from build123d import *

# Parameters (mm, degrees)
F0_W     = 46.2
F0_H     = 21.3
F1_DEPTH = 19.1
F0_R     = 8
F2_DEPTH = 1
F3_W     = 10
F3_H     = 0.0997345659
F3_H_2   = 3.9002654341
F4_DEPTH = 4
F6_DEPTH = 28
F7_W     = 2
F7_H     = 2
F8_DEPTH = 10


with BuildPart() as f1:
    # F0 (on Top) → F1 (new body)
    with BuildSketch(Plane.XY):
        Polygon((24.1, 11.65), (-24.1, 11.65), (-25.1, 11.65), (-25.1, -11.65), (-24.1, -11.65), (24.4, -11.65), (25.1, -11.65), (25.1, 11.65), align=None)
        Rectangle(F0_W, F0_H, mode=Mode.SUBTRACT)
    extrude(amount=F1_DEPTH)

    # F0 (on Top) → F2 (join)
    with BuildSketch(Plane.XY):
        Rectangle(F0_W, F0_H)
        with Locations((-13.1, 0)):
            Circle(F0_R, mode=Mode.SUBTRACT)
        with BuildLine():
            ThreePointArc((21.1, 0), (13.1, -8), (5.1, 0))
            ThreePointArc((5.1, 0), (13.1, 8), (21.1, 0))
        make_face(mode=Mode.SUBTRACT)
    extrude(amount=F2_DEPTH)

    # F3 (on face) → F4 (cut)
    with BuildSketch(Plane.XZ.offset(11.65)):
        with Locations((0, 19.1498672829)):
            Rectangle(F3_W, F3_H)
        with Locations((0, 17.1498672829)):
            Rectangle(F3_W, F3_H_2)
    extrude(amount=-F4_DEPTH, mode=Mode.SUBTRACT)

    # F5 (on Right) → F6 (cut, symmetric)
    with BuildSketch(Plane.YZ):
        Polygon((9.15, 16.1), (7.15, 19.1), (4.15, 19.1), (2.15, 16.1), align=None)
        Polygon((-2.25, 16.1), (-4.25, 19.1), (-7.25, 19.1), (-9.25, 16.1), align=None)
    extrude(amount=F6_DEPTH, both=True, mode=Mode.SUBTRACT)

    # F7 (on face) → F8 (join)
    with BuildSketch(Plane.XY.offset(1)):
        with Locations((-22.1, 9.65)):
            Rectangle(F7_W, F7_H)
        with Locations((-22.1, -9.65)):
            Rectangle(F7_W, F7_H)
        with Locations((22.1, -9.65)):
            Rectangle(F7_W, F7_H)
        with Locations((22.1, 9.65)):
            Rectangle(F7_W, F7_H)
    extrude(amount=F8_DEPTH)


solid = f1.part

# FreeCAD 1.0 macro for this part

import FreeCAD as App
import Part
import Sketcher

V = App.Vector
Q = App.Units.Quantity

doc = App.newDocument("Part")
body = doc.addObject("PartDesign::Body", "Body")

# Sketch on XY plane
sketch1 = body.newObject("Sketcher::SketchObject", "Sketch")
sketch1.AttachmentSupport = (doc.getObject("XY_Plane"), [""])
sketch1.MapMode = "FlatFace"
sketch1.addGeometry(Part.LineSegment(V(-25, 12, 0), V(-25, -12, 0)), False)
sketch1.addGeometry(Part.LineSegment(V(-25, -12, 0), V(25, -12, 0)), False)
sketch1.addGeometry(Part.LineSegment(V(25, -12, 0), V(25, 12, 0)), False)
sketch1.addGeometry(Part.LineSegment(V(25, 12, 0), V(-25, 12, 0)), False)
sketch1.addGeometry(Part.LineSegment(V(23, -11, 0), V(-23, -11, 0)), False)
sketch1.addGeometry(Part.LineSegment(V(-23, -11, 0), V(-23, 11, 0)), False)
sketch1.addGeometry(Part.LineSegment(V(-23, 11, 0), V(23, 11, 0)), False)
sketch1.addGeometry(Part.LineSegment(V(23, 11, 0), V(23, -11, 0)), False)
sketch1.addConstraint(Sketcher.Constraint("Coincident", 0, 2, 1, 1))
sketch1.addConstraint(Sketcher.Constraint("Coincident", 1, 2, 2, 1))
sketch1.addConstraint(Sketcher.Constraint("Coincident", 2, 2, 3, 1))
sketch1.addConstraint(Sketcher.Constraint("Coincident", 3, 2, 0, 1))
sketch1.addConstraint(Sketcher.Constraint("Coincident", 4, 2, 5, 1))
sketch1.addConstraint(Sketcher.Constraint("Coincident", 5, 2, 6, 1))
sketch1.addConstraint(Sketcher.Constraint("Coincident", 6, 2, 7, 1))
sketch1.addConstraint(Sketcher.Constraint("Coincident", 7, 2, 4, 1))
sketch1.addConstraint(Sketcher.Constraint("Vertical", 0))
sketch1.addConstraint(Sketcher.Constraint("Horizontal", 1))
sketch1.addConstraint(Sketcher.Constraint("Vertical", 2))
sketch1.addConstraint(Sketcher.Constraint("Horizontal", 3))
sketch1.addConstraint(Sketcher.Constraint("Horizontal", 4))
sketch1.addConstraint(Sketcher.Constraint("Vertical", 5))
sketch1.addConstraint(Sketcher.Constraint("Horizontal", 6))
sketch1.addConstraint(Sketcher.Constraint("Vertical", 7))
sketch1.addConstraint(Sketcher.Constraint("Symmetric", 0, 2, 2, 2, -1, 1))
sketch1.addConstraint(Sketcher.Constraint("Symmetric", 4, 2, 6, 2, -1, 1))
sketch1.addConstraint(Sketcher.Constraint("DistanceX", 1, 1, 1, 2, Q("50.2 mm")))
sketch1.addConstraint(Sketcher.Constraint("DistanceX", 4, 2, 4, 1, Q("46.2 mm")))
sketch1.addConstraint(Sketcher.Constraint("DistanceY", 0, 2, 0, 1, Q("23.3 mm")))
sketch1.addConstraint(Sketcher.Constraint("DistanceY", 5, 1, 5, 2, Q("21.3 mm")))
pad1 = body.newObject("PartDesign::Pad", "Pad")
pad1.Profile = sketch1
pad1.Length = 19.1

# Sketch on XY plane
sketch2 = body.newObject("Sketcher::SketchObject", "Sketch001")
sketch2.AttachmentSupport = (doc.getObject("XY_Plane"), [""])
sketch2.MapMode = "FlatFace"
sketch2.addGeometry(Part.LineSegment(V(-23, 11, 0), V(-23, -11, 0)), False)
sketch2.addGeometry(Part.LineSegment(V(-23, -11, 0), V(23, -11, 0)), False)
sketch2.addGeometry(Part.LineSegment(V(23, -11, 0), V(23, 11, 0)), False)
sketch2.addGeometry(Part.LineSegment(V(23, 11, 0), V(-23, 11, 0)), False)
sketch2.addGeometry(Part.Circle(V(-13, 0, 0), V(0, 0, 1), 8), False)
sketch2.addGeometry(Part.Circle(V(13, 0, 0), V(0, 0, 1), 8), False)
sketch2.addConstraint(Sketcher.Constraint("Coincident", 0, 2, 1, 1))
sketch2.addConstraint(Sketcher.Constraint("Coincident", 1, 2, 2, 1))
sketch2.addConstraint(Sketcher.Constraint("Coincident", 2, 2, 3, 1))
sketch2.addConstraint(Sketcher.Constraint("Coincident", 3, 2, 0, 1))
sketch2.addConstraint(Sketcher.Constraint("Vertical", 0))
sketch2.addConstraint(Sketcher.Constraint("Horizontal", 1))
sketch2.addConstraint(Sketcher.Constraint("Vertical", 2))
sketch2.addConstraint(Sketcher.Constraint("Horizontal", 3))
sketch2.addConstraint(Sketcher.Constraint("Equal", 4, 5))
sketch2.addConstraint(Sketcher.Constraint("Symmetric", 4, 3, 5, 3, -1, 1))
sketch2.addConstraint(Sketcher.Constraint("Symmetric", 0, 2, 2, 2, -1, 1))
sketch2.addConstraint(Sketcher.Constraint("PointOnObject", 4, 3, -1))
sketch2.addConstraint(Sketcher.Constraint("Diameter", 4, Q("16 mm")))
sketch2.addConstraint(Sketcher.Constraint("DistanceX", 1, 1, 1, 2, Q("46.2 mm")))
sketch2.addConstraint(Sketcher.Constraint("DistanceY", 0, 2, 0, 1, Q("21.3 mm")))
sketch2.addConstraint(Sketcher.Constraint("DistanceX", 0, 2, 4, 3, Q("10 mm")))
pad2 = body.newObject("PartDesign::Pad", "Pad001")
pad2.Profile = sketch2
pad2.Length = 1

# Sketch on XZ plane
sketch3 = body.newObject("Sketcher::SketchObject", "Sketch002")
sketch3.AttachmentSupport = (doc.getObject("XZ_Plane"), [""])
sketch3.MapMode = "FlatFace"
sketch3.AttachmentOffset = App.Placement(V(0, 0, 11.65), App.Rotation())
sketch3.addGeometry(Part.LineSegment(V(-5, 19.2, 0), V(-5, 15.2, 0)), False)
sketch3.addGeometry(Part.LineSegment(V(-5, 15.2, 0), V(5, 15.2, 0)), False)
sketch3.addGeometry(Part.LineSegment(V(5, 15.2, 0), V(5, 19.2, 0)), False)
sketch3.addGeometry(Part.LineSegment(V(5, 19.2, 0), V(-5, 19.2, 0)), False)
sketch3.addConstraint(Sketcher.Constraint("Coincident", 0, 2, 1, 1))
sketch3.addConstraint(Sketcher.Constraint("Coincident", 1, 2, 2, 1))
sketch3.addConstraint(Sketcher.Constraint("Coincident", 2, 2, 3, 1))
sketch3.addConstraint(Sketcher.Constraint("Coincident", 3, 2, 0, 1))
sketch3.addConstraint(Sketcher.Constraint("Vertical", 0))
sketch3.addConstraint(Sketcher.Constraint("Horizontal", 1))
sketch3.addConstraint(Sketcher.Constraint("Vertical", 2))
sketch3.addConstraint(Sketcher.Constraint("Horizontal", 3))
sketch3.addConstraint(Sketcher.Constraint("DistanceX", 1, 1, 1, 2, Q("10 mm")))
sketch3.addConstraint(Sketcher.Constraint("DistanceY", 0, 2, 0, 1, Q("4 mm")))
sketch3.addConstraint(Sketcher.Constraint("DistanceX", 0, 2, -1, 1, Q("5 mm")))
sketch3.addConstraint(Sketcher.Constraint("DistanceY", -1, 1, 0, 2, Q("15.199735 mm")))
pocket1 = body.newObject("PartDesign::Pocket", "Pocket")
pocket1.Profile = sketch3
pocket1.Length = 4

# Sketch on YZ plane
sketch4 = body.newObject("Sketcher::SketchObject", "Sketch003")
sketch4.AttachmentSupport = (doc.getObject("YZ_Plane"), [""])
sketch4.MapMode = "FlatFace"
sketch4.addGeometry(Part.LineSegment(V(9.2, 16.1, 0), V(7.2, 19.1, 0)), False)
sketch4.addGeometry(Part.LineSegment(V(7.2, 19.1, 0), V(4.2, 19.1, 0)), False)
sketch4.addGeometry(Part.LineSegment(V(4.2, 19.1, 0), V(2.1, 16.1, 0)), False)
sketch4.addGeometry(Part.LineSegment(V(2.1, 16.1, 0), V(9.2, 16.1, 0)), False)
sketch4.addGeometry(Part.LineSegment(V(-2.2, 16.1, 0), V(-4.2, 19.1, 0)), False)
sketch4.addGeometry(Part.LineSegment(V(-4.2, 19.1, 0), V(-7.2, 19.1, 0)), False)
sketch4.addGeometry(Part.LineSegment(V(-7.2, 19.1, 0), V(-9.2, 16.1, 0)), False)
sketch4.addGeometry(Part.LineSegment(V(-9.2, 16.1, 0), V(-2.2, 16.1, 0)), False)
sketch4.addConstraint(Sketcher.Constraint("Coincident", 0, 2, 1, 1))
sketch4.addConstraint(Sketcher.Constraint("Coincident", 1, 2, 2, 1))
sketch4.addConstraint(Sketcher.Constraint("Coincident", 2, 2, 3, 1))
sketch4.addConstraint(Sketcher.Constraint("Coincident", 3, 2, 0, 1))
sketch4.addConstraint(Sketcher.Constraint("Coincident", 4, 2, 5, 1))
sketch4.addConstraint(Sketcher.Constraint("Coincident", 5, 2, 6, 1))
sketch4.addConstraint(Sketcher.Constraint("Coincident", 6, 2, 7, 1))
sketch4.addConstraint(Sketcher.Constraint("Coincident", 7, 2, 4, 1))
sketch4.addConstraint(Sketcher.Constraint("Horizontal", 1))
sketch4.addConstraint(Sketcher.Constraint("Horizontal", 3))
sketch4.addConstraint(Sketcher.Constraint("Horizontal", 5))
sketch4.addConstraint(Sketcher.Constraint("Horizontal", 7))
sketch4.addConstraint(Sketcher.Constraint("Parallel", 0, 4))
sketch4.addConstraint(Sketcher.Constraint("Parallel", 2, 6))
sketch4.addConstraint(Sketcher.Constraint("Horizontal", 1, 2, 4, 2))
sketch4.addConstraint(Sketcher.Constraint("Horizontal", 3, 2, 6, 2))
sketch4.addConstraint(Sketcher.Constraint("Equal", 1, 5))
sketch4.addConstraint(Sketcher.Constraint("Equal", 0, 2))
sketch4.addConstraint(Sketcher.Constraint("DistanceX", 1, 2, 1, 1, Q("3 mm")))
sketch4.addConstraint(Sketcher.Constraint("DistanceX", 3, 1, 3, 2, Q("7 mm")))
sketch4.addConstraint(Sketcher.Constraint("DistanceY", 2, 2, 1, 2, Q("3 mm")))
sketch4.addConstraint(Sketcher.Constraint("DistanceY", -1, 1, 0, 2, Q("19.1 mm")))
sketch4.addConstraint(Sketcher.Constraint("DistanceX", 4, 2, 2, 2, Q("6.4 mm")))
sketch4.addConstraint(Sketcher.Constraint("DistanceX", -1, 1, 0, 2, Q("7.15 mm")))
pocket2 = body.newObject("PartDesign::Pocket", "Pocket001")
pocket2.Profile = sketch4
pocket2.Length = 56
pocket2.Midplane = True

# Sketch on XY plane
sketch5 = body.newObject("Sketcher::SketchObject", "Sketch004")
sketch5.AttachmentSupport = (doc.getObject("XY_Plane"), [""])
sketch5.MapMode = "FlatFace"
sketch5.AttachmentOffset = App.Placement(V(0, 0, 1), App.Rotation())
sketch5.addGeometry(Part.LineSegment(V(-23.1, 10.7, 0), V(-23.1, 8.7, 0)), False)
sketch5.addGeometry(Part.LineSegment(V(-23.1, 8.7, 0), V(-21.1, 8.7, 0)), False)
sketch5.addGeometry(Part.LineSegment(V(-21.1, 8.7, 0), V(-21.1, 10.7, 0)), False)
sketch5.addGeometry(Part.LineSegment(V(-21.1, 10.7, 0), V(-23.1, 10.7, 0)), False)
sketch5.addGeometry(Part.LineSegment(V(-23.1, -8.7, 0), V(-23.1, -10.7, 0)), False)
sketch5.addGeometry(Part.LineSegment(V(-23.1, -10.7, 0), V(-21.1, -10.7, 0)), False)
sketch5.addGeometry(Part.LineSegment(V(-21.1, -10.7, 0), V(-21.1, -8.7, 0)), False)
sketch5.addGeometry(Part.LineSegment(V(-21.1, -8.7, 0), V(-23.1, -8.7, 0)), False)
sketch5.addGeometry(Part.LineSegment(V(21.1, -8.7, 0), V(21.1, -10.7, 0)), False)
sketch5.addGeometry(Part.LineSegment(V(21.1, -10.7, 0), V(23.1, -10.7, 0)), False)
sketch5.addGeometry(Part.LineSegment(V(23.1, -10.7, 0), V(23.1, -8.7, 0)), False)
sketch5.addGeometry(Part.LineSegment(V(23.1, -8.7, 0), V(21.1, -8.7, 0)), False)
sketch5.addGeometry(Part.LineSegment(V(21.1, 10.7, 0), V(21.1, 8.7, 0)), False)
sketch5.addGeometry(Part.LineSegment(V(21.1, 8.7, 0), V(23.1, 8.7, 0)), False)
sketch5.addGeometry(Part.LineSegment(V(23.1, 8.7, 0), V(23.1, 10.7, 0)), False)
sketch5.addGeometry(Part.LineSegment(V(23.1, 10.7, 0), V(21.1, 10.7, 0)), False)
sketch5.addConstraint(Sketcher.Constraint("Coincident", 0, 2, 1, 1))
sketch5.addConstraint(Sketcher.Constraint("Coincident", 1, 2, 2, 1))
sketch5.addConstraint(Sketcher.Constraint("Coincident", 2, 2, 3, 1))
sketch5.addConstraint(Sketcher.Constraint("Coincident", 3, 2, 0, 1))
sketch5.addConstraint(Sketcher.Constraint("Coincident", 4, 2, 5, 1))
sketch5.addConstraint(Sketcher.Constraint("Coincident", 5, 2, 6, 1))
sketch5.addConstraint(Sketcher.Constraint("Coincident", 6, 2, 7, 1))
sketch5.addConstraint(Sketcher.Constraint("Coincident", 7, 2, 4, 1))
sketch5.addConstraint(Sketcher.Constraint("Coincident", 8, 2, 9, 1))
sketch5.addConstraint(Sketcher.Constraint("Coincident", 9, 2, 10, 1))
sketch5.addConstraint(Sketcher.Constraint("Coincident", 10, 2, 11, 1))
sketch5.addConstraint(Sketcher.Constraint("Coincident", 11, 2, 8, 1))
sketch5.addConstraint(Sketcher.Constraint("Coincident", 12, 2, 13, 1))
sketch5.addConstraint(Sketcher.Constraint("Coincident", 13, 2, 14, 1))
sketch5.addConstraint(Sketcher.Constraint("Coincident", 14, 2, 15, 1))
sketch5.addConstraint(Sketcher.Constraint("Coincident", 15, 2, 12, 1))
sketch5.addConstraint(Sketcher.Constraint("Vertical", 0))
sketch5.addConstraint(Sketcher.Constraint("Horizontal", 1))
sketch5.addConstraint(Sketcher.Constraint("Vertical", 2))
sketch5.addConstraint(Sketcher.Constraint("Horizontal", 3))
sketch5.addConstraint(Sketcher.Constraint("Vertical", 4))
sketch5.addConstraint(Sketcher.Constraint("Horizontal", 5))
sketch5.addConstraint(Sketcher.Constraint("Vertical", 6))
sketch5.addConstraint(Sketcher.Constraint("Horizontal", 7))
sketch5.addConstraint(Sketcher.Constraint("Vertical", 8))
sketch5.addConstraint(Sketcher.Constraint("Horizontal", 9))
sketch5.addConstraint(Sketcher.Constraint("Vertical", 10))
sketch5.addConstraint(Sketcher.Constraint("Horizontal", 11))
sketch5.addConstraint(Sketcher.Constraint("Vertical", 12))
sketch5.addConstraint(Sketcher.Constraint("Horizontal", 13))
sketch5.addConstraint(Sketcher.Constraint("Vertical", 14))
sketch5.addConstraint(Sketcher.Constraint("Horizontal", 15))
sketch5.addConstraint(Sketcher.Constraint("Symmetric", 2, 2, 8, 2, -1, 1))
sketch5.addConstraint(Sketcher.Constraint("Symmetric", 0, 2, 10, 2, -1, 1))
sketch5.addConstraint(Sketcher.Constraint("Symmetric", 6, 2, 12, 2, -1, 1))
sketch5.addConstraint(Sketcher.Constraint("Symmetric", 4, 2, 14, 2, -1, 1))
sketch5.addConstraint(Sketcher.Constraint("Symmetric", 5, 2, 8, 2, -2))
sketch5.addConstraint(Sketcher.Constraint("Symmetric", 7, 2, 10, 2, -2))
sketch5.addConstraint(Sketcher.Constraint("Equal", 15, 0))
sketch5.addConstraint(Sketcher.Constraint("DistanceX", 1, 1, 1, 2, Q("2 mm")))
sketch5.addConstraint(Sketcher.Constraint("DistanceX", 0, 2, -1, 1, Q("23.1 mm")))
sketch5.addConstraint(Sketcher.Constraint("DistanceY", 4, 2, 0, 2, Q("19.3 mm")))
pad3 = body.newObject("PartDesign::Pad", "Pad002")
pad3.Profile = sketch5
pad3.Length = 10

doc.recompute()
